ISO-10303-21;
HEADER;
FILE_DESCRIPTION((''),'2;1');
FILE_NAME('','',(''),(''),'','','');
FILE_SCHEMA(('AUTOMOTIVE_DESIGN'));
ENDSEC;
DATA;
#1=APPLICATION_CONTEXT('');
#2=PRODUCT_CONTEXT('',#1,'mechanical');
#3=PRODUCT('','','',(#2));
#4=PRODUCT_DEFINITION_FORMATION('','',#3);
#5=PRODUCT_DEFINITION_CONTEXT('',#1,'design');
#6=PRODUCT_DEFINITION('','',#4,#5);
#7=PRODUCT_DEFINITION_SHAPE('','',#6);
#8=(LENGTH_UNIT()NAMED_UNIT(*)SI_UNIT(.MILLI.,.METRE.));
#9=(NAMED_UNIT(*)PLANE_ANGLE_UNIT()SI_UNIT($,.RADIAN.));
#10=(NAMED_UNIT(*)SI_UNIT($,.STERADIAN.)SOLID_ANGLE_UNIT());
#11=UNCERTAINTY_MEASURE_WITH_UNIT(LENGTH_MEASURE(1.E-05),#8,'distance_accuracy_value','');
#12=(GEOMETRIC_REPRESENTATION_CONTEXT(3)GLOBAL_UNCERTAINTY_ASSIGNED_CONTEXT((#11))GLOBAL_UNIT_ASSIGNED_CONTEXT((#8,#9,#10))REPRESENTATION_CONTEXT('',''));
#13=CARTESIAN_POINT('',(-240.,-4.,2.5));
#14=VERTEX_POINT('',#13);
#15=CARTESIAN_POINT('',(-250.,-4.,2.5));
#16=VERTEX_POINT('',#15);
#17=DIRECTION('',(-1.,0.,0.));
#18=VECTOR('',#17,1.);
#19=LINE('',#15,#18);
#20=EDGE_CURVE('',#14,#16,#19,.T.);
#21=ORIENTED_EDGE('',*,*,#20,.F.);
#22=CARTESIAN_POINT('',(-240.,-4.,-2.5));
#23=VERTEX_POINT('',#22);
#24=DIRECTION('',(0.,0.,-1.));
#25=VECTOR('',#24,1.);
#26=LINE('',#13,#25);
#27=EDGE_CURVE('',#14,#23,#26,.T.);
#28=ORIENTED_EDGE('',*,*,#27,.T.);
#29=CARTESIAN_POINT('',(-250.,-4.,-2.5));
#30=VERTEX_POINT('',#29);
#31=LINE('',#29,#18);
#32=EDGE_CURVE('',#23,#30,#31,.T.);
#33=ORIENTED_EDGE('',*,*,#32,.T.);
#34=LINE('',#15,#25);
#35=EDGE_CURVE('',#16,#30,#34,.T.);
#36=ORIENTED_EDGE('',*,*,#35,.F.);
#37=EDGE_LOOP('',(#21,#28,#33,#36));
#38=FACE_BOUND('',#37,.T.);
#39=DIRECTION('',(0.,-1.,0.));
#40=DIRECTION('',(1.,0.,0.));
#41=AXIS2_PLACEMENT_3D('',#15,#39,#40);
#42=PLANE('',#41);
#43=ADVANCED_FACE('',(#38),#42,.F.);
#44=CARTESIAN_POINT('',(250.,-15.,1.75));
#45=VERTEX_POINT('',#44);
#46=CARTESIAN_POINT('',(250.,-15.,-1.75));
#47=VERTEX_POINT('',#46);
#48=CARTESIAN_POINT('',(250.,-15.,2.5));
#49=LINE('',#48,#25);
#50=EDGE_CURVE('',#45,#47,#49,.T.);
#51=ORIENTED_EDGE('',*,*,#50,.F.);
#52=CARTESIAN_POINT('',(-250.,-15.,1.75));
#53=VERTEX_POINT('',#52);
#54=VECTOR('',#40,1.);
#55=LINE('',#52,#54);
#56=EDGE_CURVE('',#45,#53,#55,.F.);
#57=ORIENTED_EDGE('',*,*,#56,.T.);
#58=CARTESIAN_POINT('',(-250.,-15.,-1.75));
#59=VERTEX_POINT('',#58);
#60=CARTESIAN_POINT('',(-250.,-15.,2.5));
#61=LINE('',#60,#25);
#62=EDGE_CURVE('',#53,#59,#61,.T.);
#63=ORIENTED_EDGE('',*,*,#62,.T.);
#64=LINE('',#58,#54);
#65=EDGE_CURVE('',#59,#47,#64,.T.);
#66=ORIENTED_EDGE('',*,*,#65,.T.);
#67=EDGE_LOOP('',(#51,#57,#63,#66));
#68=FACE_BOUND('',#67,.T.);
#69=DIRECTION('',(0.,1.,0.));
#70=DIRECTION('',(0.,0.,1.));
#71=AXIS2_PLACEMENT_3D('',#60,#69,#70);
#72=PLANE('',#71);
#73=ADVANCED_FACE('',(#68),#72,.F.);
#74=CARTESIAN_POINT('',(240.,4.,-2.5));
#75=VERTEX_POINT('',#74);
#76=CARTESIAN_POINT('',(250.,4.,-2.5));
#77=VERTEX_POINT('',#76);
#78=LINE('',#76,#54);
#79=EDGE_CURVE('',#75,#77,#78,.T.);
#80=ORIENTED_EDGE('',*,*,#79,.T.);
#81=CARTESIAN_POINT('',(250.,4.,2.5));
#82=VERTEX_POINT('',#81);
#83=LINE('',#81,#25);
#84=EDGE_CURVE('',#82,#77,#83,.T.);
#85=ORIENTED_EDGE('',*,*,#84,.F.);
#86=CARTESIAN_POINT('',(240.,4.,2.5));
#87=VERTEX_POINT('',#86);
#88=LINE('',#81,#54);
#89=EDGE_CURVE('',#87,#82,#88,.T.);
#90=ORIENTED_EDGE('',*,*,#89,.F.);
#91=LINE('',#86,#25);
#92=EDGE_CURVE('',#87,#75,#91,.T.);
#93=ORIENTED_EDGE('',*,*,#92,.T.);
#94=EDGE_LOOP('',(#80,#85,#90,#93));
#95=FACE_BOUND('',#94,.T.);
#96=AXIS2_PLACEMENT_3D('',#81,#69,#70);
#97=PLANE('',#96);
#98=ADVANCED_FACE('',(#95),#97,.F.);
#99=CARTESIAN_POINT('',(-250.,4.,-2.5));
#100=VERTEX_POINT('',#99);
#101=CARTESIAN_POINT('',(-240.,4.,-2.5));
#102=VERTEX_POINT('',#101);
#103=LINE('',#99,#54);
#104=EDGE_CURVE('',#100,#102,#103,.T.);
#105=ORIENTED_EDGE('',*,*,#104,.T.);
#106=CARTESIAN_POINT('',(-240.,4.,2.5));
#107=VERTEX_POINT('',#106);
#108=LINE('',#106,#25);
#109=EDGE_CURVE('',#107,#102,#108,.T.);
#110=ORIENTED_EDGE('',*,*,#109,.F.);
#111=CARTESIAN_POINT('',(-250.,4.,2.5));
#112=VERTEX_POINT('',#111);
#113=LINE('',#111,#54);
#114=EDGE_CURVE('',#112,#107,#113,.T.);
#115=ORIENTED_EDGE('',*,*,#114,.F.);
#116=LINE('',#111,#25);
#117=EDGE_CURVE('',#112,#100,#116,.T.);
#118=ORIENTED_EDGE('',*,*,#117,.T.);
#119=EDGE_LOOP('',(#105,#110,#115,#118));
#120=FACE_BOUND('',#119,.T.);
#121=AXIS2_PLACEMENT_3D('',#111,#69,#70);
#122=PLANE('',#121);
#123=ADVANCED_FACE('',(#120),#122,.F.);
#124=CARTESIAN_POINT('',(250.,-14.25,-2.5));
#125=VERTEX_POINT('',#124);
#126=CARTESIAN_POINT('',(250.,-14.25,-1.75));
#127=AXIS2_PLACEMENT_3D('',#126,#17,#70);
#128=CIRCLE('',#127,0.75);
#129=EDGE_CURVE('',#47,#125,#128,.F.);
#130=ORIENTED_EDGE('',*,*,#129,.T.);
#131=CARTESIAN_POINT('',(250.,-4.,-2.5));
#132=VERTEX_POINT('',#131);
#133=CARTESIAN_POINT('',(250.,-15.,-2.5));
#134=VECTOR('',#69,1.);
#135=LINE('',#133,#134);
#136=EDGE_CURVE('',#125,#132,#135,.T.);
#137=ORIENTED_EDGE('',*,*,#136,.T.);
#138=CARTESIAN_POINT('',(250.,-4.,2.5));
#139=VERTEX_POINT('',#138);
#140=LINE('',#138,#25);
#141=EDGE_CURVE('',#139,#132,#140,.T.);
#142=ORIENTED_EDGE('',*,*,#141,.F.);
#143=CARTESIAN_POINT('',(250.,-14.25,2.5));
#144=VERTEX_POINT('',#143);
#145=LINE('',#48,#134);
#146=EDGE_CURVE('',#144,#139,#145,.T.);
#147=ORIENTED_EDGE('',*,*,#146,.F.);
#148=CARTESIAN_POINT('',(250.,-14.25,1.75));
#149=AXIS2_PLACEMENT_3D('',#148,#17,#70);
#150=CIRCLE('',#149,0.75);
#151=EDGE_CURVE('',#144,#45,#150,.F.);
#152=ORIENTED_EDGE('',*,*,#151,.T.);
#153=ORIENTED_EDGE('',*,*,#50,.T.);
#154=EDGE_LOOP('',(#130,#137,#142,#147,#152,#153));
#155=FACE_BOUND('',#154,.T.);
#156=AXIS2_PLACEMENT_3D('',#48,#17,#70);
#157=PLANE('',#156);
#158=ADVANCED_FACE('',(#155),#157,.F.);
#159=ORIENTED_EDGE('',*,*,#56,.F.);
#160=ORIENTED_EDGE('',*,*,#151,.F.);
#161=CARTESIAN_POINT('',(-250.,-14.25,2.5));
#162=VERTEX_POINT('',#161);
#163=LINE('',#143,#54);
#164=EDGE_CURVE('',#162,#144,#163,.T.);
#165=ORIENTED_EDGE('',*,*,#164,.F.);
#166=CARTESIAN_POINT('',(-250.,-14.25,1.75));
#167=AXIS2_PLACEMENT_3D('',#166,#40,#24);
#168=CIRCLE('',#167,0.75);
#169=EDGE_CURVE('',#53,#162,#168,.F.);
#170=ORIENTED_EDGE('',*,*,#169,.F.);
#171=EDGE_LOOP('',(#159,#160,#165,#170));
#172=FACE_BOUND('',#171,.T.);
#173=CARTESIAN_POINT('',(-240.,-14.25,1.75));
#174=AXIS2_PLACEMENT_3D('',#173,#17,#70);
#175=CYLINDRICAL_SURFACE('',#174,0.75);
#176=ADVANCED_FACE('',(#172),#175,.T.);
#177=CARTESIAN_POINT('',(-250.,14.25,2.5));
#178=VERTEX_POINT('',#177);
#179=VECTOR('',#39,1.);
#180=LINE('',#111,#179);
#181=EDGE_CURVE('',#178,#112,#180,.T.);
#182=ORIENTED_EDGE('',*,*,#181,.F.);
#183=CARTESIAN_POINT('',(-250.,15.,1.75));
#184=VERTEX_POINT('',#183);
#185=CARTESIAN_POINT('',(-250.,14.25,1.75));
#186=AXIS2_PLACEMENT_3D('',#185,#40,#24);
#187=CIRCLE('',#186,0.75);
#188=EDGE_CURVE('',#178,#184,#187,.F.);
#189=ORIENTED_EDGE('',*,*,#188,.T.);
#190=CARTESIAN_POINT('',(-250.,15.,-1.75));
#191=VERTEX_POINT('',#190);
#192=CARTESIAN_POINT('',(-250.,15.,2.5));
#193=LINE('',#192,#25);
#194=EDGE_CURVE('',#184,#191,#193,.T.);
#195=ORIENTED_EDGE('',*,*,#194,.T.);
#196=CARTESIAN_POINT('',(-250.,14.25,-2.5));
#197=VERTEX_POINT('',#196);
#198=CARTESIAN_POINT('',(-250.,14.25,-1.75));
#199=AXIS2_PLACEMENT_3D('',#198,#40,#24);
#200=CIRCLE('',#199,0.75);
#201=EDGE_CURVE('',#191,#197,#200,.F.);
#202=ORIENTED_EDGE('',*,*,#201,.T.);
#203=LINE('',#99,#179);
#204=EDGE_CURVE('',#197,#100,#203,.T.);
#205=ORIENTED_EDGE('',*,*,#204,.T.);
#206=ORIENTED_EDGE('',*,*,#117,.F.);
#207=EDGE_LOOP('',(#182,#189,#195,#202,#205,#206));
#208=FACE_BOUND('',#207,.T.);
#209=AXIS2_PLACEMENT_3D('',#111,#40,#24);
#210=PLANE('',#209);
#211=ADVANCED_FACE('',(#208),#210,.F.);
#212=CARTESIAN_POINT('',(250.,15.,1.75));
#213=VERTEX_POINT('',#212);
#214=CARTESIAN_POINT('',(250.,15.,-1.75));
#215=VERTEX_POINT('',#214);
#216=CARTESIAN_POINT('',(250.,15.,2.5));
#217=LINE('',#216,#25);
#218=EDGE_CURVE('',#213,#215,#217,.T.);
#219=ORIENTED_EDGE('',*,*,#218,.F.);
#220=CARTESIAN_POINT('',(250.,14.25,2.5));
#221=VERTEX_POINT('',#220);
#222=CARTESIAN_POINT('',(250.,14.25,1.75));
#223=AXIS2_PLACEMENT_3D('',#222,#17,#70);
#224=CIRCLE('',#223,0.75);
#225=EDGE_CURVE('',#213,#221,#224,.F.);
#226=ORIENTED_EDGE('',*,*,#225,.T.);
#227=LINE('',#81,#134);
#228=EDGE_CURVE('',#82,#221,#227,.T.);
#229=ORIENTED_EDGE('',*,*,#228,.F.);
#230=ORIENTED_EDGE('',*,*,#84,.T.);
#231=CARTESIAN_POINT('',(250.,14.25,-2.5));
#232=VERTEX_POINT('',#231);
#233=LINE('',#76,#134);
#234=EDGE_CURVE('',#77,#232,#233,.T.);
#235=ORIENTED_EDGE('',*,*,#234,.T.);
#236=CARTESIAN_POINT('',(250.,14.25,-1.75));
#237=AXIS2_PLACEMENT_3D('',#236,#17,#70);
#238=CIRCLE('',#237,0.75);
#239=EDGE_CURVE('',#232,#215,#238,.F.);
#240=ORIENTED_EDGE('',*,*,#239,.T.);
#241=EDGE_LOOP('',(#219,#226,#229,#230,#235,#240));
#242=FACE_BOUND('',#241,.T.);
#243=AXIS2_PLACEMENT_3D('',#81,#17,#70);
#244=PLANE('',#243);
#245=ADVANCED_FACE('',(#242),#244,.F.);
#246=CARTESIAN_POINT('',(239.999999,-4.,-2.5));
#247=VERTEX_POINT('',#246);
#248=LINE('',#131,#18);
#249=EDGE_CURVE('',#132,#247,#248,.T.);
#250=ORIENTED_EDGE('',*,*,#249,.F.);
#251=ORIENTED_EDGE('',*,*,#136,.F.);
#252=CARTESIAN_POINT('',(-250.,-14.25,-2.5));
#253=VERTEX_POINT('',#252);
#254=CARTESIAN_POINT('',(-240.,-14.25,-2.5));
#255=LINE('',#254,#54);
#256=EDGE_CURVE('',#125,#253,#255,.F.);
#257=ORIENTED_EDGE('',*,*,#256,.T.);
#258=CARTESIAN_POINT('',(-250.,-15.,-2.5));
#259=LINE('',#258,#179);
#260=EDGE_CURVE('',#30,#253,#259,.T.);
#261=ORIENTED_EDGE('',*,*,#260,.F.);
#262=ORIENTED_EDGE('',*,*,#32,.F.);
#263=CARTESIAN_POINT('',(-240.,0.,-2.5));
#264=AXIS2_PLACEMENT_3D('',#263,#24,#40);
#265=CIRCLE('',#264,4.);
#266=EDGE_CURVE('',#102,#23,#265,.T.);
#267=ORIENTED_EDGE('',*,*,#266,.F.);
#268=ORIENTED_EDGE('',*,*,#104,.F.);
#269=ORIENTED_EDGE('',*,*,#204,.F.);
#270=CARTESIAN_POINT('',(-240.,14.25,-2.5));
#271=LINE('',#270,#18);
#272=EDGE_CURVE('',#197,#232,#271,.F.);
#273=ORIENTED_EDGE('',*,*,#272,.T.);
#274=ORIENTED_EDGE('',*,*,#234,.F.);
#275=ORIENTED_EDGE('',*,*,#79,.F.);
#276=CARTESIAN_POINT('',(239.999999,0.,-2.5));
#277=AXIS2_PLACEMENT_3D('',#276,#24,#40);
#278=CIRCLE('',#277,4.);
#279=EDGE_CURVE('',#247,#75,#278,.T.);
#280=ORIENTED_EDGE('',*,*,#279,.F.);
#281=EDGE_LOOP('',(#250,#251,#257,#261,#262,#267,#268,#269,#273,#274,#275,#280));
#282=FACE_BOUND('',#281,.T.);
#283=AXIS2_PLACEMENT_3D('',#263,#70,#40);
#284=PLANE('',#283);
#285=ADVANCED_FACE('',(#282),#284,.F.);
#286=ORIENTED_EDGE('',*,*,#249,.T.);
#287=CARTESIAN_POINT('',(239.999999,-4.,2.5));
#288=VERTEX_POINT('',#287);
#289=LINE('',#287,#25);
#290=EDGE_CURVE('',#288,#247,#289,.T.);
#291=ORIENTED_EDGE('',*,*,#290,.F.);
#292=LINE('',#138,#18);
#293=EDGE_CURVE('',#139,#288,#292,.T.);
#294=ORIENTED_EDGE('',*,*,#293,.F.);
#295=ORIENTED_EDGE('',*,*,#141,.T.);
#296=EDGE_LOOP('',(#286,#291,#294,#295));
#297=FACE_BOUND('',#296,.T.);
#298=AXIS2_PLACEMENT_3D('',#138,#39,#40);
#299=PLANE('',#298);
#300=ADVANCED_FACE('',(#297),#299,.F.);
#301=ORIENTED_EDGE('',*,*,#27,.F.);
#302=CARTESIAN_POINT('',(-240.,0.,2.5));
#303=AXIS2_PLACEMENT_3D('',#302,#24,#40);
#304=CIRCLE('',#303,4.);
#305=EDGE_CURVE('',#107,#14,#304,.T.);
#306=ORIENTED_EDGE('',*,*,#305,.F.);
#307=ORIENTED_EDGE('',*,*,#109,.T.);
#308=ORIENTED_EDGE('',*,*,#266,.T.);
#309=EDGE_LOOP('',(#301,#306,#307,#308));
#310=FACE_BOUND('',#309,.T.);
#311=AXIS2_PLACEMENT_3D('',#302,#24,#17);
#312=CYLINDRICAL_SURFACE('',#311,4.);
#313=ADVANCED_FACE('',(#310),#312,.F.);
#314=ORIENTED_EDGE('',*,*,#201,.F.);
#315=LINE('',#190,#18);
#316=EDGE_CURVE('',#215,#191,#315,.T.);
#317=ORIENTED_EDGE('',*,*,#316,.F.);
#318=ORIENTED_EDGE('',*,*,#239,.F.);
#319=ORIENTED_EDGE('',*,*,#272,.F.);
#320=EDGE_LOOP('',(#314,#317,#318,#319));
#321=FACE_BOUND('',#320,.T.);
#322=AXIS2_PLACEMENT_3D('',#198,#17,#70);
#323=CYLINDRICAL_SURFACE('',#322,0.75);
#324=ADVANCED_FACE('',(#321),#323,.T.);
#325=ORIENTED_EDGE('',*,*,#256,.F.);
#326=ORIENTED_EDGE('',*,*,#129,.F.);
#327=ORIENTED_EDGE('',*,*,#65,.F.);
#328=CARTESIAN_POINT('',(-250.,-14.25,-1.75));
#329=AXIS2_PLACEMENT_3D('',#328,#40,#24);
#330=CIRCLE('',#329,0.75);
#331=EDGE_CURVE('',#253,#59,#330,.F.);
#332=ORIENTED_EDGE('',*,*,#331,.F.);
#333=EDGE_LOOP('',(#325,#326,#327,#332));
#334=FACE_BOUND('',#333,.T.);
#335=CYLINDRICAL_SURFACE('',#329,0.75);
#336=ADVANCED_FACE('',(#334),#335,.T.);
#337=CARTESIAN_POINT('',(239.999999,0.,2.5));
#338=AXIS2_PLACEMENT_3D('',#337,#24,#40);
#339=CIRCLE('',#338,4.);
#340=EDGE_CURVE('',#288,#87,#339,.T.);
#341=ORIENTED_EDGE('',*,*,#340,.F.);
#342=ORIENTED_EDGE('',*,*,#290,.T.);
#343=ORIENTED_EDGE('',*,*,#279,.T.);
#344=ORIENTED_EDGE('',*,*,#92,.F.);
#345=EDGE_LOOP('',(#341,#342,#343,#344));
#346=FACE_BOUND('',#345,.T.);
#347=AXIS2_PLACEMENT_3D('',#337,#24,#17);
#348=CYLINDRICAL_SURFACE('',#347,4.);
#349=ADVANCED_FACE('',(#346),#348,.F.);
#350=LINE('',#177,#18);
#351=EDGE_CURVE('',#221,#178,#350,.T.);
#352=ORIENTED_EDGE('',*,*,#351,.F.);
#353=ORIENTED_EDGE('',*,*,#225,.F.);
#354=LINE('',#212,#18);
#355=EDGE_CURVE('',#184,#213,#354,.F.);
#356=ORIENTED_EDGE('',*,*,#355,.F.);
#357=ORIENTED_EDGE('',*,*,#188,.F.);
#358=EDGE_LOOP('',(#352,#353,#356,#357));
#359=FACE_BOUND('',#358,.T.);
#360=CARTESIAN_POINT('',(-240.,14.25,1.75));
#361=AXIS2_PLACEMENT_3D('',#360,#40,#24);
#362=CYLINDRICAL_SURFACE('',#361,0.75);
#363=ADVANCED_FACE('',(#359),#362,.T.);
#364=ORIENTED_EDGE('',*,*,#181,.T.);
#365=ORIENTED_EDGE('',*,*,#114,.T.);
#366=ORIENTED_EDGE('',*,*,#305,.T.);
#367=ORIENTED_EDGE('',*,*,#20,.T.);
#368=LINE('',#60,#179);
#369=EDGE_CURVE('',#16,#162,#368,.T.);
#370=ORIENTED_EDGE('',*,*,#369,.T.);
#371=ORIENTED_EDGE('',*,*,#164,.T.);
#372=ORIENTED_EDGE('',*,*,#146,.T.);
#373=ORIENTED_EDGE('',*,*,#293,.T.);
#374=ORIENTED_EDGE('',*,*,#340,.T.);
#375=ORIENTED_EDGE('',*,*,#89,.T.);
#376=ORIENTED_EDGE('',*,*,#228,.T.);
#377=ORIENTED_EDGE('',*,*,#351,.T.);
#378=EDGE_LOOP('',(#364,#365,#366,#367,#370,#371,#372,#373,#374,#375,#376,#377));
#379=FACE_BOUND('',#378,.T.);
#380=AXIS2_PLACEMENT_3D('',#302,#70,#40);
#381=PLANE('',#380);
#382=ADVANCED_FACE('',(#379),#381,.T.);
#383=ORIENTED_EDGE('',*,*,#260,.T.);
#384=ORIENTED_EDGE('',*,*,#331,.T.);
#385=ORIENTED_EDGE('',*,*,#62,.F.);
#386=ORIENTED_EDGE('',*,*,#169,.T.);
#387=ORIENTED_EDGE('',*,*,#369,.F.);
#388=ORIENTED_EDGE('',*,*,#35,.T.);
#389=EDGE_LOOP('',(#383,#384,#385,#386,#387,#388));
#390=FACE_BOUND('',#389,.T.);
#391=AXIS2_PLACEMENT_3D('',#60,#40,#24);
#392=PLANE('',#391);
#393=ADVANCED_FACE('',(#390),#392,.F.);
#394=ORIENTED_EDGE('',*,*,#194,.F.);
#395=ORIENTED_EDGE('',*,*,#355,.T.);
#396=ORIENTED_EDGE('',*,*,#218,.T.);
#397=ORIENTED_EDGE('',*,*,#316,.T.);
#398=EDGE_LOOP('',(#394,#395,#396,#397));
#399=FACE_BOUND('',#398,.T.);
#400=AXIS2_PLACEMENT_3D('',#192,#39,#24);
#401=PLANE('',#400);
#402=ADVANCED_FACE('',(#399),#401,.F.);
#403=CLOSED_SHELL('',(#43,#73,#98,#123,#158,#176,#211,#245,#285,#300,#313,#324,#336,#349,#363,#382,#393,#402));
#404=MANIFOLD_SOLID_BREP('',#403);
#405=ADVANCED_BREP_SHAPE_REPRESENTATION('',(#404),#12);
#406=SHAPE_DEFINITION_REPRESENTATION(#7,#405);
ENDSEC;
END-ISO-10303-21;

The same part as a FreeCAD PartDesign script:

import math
import FreeCAD as App
import Part
import Sketcher
from FreeCAD import Vector


def edges_at(feature, points):
    """Names of the edges that pass closest to the given points."""
    edges = feature.Shape.Edges
    near = lambda p: min(range(len(edges)), key=lambda i: edges[i].distToShape(Part.Vertex(*p))[0])
    return sorted({f"Edge{near(p) + 1}" for p in points})

doc = App.newDocument("Part")
body = doc.addObject("PartDesign::Body", "Body")

# Sketch on XY plane
sketch1 = body.newObject("Sketcher::SketchObject", "Sketch")
sketch1.AttachmentSupport = (doc.getObject("XY_Plane"), [""])
sketch1.MapMode = "FlatFace"
sketch1.addGeometry(Part.LineSegment(Vector(-250, -15, 0), Vector(250, -15, 0)), False)
sketch1.addGeometry(Part.LineSegment(Vector(250, -15, 0), Vector(250, -4, 0)), False)
sketch1.addGeometry(Part.LineSegment(Vector(250, -4, 0), Vector(239.999999, -4, 0)), False)
sketch1.addGeometry(Part.ArcOfCircle(Part.Circle(Vector(239.999999, 0, 0), Vector(0, 0, 1), 4), math.radians(89.999987), math.radians(270)), False)
sketch1.addGeometry(Part.LineSegment(Vector(240, 4, 0), Vector(250, 4, 0)), False)
sketch1.addGeometry(Part.LineSegment(Vector(250, 4, 0), Vector(250, 15, 0)), False)
sketch1.addGeometry(Part.LineSegment(Vector(250, 15, 0), Vector(-250, 15, 0)), False)
sketch1.addGeometry(Part.LineSegment(Vector(-250, 15, 0), Vector(-250, 4, 0)), False)
sketch1.addGeometry(Part.LineSegment(Vector(-250, 4, 0), Vector(-240, 4, 0)), False)
sketch1.addGeometry(Part.ArcOfCircle(Part.Circle(Vector(-240, 0, 0), Vector(0, 0, 1), 4), math.radians(-90), math.radians(90)), False)
sketch1.addGeometry(Part.LineSegment(Vector(-240, -4, 0), Vector(-250, -4, 0)), False)
sketch1.addGeometry(Part.LineSegment(Vector(-250, -4, 0), Vector(-250, -15, 0)), False)
sketch1.addConstraint(Sketcher.Constraint("Coincident", 0, 2, 1, 1))
sketch1.addConstraint(Sketcher.Constraint("Coincident", 1, 2, 2, 1))
sketch1.addConstraint(Sketcher.Constraint("Tangent", 2, 2, 3, 2))
sketch1.addConstraint(Sketcher.Constraint("Tangent", 3, 1, 4, 1))
sketch1.addConstraint(Sketcher.Constraint("Coincident", 4, 2, 5, 1))
sketch1.addConstraint(Sketcher.Constraint("Coincident", 5, 2, 6, 1))
sketch1.addConstraint(Sketcher.Constraint("Coincident", 6, 2, 7, 1))
sketch1.addConstraint(Sketcher.Constraint("Coincident", 7, 2, 8, 1))
sketch1.addConstraint(Sketcher.Constraint("Tangent", 8, 2, 9, 2))
sketch1.addConstraint(Sketcher.Constraint("Tangent", 9, 1, 10, 1))
sketch1.addConstraint(Sketcher.Constraint("Coincident", 10, 2, 11, 1))
sketch1.addConstraint(Sketcher.Constraint("Coincident", 11, 2, 0, 1))
sketch1.addConstraint(Sketcher.Constraint("Horizontal", 0))
sketch1.addConstraint(Sketcher.Constraint("Vertical", 1))
sketch1.addConstraint(Sketcher.Constraint("Horizontal", 2))
sketch1.addConstraint(Sketcher.Constraint("Horizontal", 4))
sketch1.addConstraint(Sketcher.Constraint("Vertical", 5))
sketch1.addConstraint(Sketcher.Constraint("Horizontal", 6))
sketch1.addConstraint(Sketcher.Constraint("Vertical", 7))
sketch1.addConstraint(Sketcher.Constraint("Horizontal", 8))
sketch1.addConstraint(Sketcher.Constraint("Horizontal", 10))
sketch1.addConstraint(Sketcher.Constraint("Vertical", 11))
sketch1.addConstraint(Sketcher.Constraint("Equal", 3, 9))
sketch1.addConstraint(Sketcher.Constraint("Symmetric", 3, 3, 9, 3, -1, 1))
sketch1.addConstraint(Sketcher.Constraint("Symmetric", 0, 2, 6, 2, -1, 1))
sketch1.addConstraint(Sketcher.Constraint("Symmetric", 4, 2, 7, 2, -2))
sketch1.addConstraint(Sketcher.Constraint("Vertical", 7, 2, 10, 2))
sketch1.addConstraint(Sketcher.Constraint("Radius", 3, 4.0))
sketch1.addConstraint(Sketcher.Constraint("DistanceX", 0, 1, 0, 2, 500.0))
sketch1.addConstraint(Sketcher.Constraint("DistanceX", 2, 2, 2, 1, 10.000001))
sketch1.addConstraint(Sketcher.Constraint("DistanceY", 1, 1, 1, 2, 11.0))
pad1 = body.newObject("PartDesign::Pad", "Pad")
pad1.Profile = sketch1
pad1.Length = 5
pad1.Midplane = True
doc.recompute()

fillet = body.newObject("PartDesign::Fillet", "Fillet")
fillet.Base = (pad1, edges_at(pad1, [
    (0, -15, -2.5),
    (0, 15, -2.5),
    (0, -15, 2.5),
    (0, 15, 2.5),
]))
fillet.Radius = 0.75

doc.recompute()
